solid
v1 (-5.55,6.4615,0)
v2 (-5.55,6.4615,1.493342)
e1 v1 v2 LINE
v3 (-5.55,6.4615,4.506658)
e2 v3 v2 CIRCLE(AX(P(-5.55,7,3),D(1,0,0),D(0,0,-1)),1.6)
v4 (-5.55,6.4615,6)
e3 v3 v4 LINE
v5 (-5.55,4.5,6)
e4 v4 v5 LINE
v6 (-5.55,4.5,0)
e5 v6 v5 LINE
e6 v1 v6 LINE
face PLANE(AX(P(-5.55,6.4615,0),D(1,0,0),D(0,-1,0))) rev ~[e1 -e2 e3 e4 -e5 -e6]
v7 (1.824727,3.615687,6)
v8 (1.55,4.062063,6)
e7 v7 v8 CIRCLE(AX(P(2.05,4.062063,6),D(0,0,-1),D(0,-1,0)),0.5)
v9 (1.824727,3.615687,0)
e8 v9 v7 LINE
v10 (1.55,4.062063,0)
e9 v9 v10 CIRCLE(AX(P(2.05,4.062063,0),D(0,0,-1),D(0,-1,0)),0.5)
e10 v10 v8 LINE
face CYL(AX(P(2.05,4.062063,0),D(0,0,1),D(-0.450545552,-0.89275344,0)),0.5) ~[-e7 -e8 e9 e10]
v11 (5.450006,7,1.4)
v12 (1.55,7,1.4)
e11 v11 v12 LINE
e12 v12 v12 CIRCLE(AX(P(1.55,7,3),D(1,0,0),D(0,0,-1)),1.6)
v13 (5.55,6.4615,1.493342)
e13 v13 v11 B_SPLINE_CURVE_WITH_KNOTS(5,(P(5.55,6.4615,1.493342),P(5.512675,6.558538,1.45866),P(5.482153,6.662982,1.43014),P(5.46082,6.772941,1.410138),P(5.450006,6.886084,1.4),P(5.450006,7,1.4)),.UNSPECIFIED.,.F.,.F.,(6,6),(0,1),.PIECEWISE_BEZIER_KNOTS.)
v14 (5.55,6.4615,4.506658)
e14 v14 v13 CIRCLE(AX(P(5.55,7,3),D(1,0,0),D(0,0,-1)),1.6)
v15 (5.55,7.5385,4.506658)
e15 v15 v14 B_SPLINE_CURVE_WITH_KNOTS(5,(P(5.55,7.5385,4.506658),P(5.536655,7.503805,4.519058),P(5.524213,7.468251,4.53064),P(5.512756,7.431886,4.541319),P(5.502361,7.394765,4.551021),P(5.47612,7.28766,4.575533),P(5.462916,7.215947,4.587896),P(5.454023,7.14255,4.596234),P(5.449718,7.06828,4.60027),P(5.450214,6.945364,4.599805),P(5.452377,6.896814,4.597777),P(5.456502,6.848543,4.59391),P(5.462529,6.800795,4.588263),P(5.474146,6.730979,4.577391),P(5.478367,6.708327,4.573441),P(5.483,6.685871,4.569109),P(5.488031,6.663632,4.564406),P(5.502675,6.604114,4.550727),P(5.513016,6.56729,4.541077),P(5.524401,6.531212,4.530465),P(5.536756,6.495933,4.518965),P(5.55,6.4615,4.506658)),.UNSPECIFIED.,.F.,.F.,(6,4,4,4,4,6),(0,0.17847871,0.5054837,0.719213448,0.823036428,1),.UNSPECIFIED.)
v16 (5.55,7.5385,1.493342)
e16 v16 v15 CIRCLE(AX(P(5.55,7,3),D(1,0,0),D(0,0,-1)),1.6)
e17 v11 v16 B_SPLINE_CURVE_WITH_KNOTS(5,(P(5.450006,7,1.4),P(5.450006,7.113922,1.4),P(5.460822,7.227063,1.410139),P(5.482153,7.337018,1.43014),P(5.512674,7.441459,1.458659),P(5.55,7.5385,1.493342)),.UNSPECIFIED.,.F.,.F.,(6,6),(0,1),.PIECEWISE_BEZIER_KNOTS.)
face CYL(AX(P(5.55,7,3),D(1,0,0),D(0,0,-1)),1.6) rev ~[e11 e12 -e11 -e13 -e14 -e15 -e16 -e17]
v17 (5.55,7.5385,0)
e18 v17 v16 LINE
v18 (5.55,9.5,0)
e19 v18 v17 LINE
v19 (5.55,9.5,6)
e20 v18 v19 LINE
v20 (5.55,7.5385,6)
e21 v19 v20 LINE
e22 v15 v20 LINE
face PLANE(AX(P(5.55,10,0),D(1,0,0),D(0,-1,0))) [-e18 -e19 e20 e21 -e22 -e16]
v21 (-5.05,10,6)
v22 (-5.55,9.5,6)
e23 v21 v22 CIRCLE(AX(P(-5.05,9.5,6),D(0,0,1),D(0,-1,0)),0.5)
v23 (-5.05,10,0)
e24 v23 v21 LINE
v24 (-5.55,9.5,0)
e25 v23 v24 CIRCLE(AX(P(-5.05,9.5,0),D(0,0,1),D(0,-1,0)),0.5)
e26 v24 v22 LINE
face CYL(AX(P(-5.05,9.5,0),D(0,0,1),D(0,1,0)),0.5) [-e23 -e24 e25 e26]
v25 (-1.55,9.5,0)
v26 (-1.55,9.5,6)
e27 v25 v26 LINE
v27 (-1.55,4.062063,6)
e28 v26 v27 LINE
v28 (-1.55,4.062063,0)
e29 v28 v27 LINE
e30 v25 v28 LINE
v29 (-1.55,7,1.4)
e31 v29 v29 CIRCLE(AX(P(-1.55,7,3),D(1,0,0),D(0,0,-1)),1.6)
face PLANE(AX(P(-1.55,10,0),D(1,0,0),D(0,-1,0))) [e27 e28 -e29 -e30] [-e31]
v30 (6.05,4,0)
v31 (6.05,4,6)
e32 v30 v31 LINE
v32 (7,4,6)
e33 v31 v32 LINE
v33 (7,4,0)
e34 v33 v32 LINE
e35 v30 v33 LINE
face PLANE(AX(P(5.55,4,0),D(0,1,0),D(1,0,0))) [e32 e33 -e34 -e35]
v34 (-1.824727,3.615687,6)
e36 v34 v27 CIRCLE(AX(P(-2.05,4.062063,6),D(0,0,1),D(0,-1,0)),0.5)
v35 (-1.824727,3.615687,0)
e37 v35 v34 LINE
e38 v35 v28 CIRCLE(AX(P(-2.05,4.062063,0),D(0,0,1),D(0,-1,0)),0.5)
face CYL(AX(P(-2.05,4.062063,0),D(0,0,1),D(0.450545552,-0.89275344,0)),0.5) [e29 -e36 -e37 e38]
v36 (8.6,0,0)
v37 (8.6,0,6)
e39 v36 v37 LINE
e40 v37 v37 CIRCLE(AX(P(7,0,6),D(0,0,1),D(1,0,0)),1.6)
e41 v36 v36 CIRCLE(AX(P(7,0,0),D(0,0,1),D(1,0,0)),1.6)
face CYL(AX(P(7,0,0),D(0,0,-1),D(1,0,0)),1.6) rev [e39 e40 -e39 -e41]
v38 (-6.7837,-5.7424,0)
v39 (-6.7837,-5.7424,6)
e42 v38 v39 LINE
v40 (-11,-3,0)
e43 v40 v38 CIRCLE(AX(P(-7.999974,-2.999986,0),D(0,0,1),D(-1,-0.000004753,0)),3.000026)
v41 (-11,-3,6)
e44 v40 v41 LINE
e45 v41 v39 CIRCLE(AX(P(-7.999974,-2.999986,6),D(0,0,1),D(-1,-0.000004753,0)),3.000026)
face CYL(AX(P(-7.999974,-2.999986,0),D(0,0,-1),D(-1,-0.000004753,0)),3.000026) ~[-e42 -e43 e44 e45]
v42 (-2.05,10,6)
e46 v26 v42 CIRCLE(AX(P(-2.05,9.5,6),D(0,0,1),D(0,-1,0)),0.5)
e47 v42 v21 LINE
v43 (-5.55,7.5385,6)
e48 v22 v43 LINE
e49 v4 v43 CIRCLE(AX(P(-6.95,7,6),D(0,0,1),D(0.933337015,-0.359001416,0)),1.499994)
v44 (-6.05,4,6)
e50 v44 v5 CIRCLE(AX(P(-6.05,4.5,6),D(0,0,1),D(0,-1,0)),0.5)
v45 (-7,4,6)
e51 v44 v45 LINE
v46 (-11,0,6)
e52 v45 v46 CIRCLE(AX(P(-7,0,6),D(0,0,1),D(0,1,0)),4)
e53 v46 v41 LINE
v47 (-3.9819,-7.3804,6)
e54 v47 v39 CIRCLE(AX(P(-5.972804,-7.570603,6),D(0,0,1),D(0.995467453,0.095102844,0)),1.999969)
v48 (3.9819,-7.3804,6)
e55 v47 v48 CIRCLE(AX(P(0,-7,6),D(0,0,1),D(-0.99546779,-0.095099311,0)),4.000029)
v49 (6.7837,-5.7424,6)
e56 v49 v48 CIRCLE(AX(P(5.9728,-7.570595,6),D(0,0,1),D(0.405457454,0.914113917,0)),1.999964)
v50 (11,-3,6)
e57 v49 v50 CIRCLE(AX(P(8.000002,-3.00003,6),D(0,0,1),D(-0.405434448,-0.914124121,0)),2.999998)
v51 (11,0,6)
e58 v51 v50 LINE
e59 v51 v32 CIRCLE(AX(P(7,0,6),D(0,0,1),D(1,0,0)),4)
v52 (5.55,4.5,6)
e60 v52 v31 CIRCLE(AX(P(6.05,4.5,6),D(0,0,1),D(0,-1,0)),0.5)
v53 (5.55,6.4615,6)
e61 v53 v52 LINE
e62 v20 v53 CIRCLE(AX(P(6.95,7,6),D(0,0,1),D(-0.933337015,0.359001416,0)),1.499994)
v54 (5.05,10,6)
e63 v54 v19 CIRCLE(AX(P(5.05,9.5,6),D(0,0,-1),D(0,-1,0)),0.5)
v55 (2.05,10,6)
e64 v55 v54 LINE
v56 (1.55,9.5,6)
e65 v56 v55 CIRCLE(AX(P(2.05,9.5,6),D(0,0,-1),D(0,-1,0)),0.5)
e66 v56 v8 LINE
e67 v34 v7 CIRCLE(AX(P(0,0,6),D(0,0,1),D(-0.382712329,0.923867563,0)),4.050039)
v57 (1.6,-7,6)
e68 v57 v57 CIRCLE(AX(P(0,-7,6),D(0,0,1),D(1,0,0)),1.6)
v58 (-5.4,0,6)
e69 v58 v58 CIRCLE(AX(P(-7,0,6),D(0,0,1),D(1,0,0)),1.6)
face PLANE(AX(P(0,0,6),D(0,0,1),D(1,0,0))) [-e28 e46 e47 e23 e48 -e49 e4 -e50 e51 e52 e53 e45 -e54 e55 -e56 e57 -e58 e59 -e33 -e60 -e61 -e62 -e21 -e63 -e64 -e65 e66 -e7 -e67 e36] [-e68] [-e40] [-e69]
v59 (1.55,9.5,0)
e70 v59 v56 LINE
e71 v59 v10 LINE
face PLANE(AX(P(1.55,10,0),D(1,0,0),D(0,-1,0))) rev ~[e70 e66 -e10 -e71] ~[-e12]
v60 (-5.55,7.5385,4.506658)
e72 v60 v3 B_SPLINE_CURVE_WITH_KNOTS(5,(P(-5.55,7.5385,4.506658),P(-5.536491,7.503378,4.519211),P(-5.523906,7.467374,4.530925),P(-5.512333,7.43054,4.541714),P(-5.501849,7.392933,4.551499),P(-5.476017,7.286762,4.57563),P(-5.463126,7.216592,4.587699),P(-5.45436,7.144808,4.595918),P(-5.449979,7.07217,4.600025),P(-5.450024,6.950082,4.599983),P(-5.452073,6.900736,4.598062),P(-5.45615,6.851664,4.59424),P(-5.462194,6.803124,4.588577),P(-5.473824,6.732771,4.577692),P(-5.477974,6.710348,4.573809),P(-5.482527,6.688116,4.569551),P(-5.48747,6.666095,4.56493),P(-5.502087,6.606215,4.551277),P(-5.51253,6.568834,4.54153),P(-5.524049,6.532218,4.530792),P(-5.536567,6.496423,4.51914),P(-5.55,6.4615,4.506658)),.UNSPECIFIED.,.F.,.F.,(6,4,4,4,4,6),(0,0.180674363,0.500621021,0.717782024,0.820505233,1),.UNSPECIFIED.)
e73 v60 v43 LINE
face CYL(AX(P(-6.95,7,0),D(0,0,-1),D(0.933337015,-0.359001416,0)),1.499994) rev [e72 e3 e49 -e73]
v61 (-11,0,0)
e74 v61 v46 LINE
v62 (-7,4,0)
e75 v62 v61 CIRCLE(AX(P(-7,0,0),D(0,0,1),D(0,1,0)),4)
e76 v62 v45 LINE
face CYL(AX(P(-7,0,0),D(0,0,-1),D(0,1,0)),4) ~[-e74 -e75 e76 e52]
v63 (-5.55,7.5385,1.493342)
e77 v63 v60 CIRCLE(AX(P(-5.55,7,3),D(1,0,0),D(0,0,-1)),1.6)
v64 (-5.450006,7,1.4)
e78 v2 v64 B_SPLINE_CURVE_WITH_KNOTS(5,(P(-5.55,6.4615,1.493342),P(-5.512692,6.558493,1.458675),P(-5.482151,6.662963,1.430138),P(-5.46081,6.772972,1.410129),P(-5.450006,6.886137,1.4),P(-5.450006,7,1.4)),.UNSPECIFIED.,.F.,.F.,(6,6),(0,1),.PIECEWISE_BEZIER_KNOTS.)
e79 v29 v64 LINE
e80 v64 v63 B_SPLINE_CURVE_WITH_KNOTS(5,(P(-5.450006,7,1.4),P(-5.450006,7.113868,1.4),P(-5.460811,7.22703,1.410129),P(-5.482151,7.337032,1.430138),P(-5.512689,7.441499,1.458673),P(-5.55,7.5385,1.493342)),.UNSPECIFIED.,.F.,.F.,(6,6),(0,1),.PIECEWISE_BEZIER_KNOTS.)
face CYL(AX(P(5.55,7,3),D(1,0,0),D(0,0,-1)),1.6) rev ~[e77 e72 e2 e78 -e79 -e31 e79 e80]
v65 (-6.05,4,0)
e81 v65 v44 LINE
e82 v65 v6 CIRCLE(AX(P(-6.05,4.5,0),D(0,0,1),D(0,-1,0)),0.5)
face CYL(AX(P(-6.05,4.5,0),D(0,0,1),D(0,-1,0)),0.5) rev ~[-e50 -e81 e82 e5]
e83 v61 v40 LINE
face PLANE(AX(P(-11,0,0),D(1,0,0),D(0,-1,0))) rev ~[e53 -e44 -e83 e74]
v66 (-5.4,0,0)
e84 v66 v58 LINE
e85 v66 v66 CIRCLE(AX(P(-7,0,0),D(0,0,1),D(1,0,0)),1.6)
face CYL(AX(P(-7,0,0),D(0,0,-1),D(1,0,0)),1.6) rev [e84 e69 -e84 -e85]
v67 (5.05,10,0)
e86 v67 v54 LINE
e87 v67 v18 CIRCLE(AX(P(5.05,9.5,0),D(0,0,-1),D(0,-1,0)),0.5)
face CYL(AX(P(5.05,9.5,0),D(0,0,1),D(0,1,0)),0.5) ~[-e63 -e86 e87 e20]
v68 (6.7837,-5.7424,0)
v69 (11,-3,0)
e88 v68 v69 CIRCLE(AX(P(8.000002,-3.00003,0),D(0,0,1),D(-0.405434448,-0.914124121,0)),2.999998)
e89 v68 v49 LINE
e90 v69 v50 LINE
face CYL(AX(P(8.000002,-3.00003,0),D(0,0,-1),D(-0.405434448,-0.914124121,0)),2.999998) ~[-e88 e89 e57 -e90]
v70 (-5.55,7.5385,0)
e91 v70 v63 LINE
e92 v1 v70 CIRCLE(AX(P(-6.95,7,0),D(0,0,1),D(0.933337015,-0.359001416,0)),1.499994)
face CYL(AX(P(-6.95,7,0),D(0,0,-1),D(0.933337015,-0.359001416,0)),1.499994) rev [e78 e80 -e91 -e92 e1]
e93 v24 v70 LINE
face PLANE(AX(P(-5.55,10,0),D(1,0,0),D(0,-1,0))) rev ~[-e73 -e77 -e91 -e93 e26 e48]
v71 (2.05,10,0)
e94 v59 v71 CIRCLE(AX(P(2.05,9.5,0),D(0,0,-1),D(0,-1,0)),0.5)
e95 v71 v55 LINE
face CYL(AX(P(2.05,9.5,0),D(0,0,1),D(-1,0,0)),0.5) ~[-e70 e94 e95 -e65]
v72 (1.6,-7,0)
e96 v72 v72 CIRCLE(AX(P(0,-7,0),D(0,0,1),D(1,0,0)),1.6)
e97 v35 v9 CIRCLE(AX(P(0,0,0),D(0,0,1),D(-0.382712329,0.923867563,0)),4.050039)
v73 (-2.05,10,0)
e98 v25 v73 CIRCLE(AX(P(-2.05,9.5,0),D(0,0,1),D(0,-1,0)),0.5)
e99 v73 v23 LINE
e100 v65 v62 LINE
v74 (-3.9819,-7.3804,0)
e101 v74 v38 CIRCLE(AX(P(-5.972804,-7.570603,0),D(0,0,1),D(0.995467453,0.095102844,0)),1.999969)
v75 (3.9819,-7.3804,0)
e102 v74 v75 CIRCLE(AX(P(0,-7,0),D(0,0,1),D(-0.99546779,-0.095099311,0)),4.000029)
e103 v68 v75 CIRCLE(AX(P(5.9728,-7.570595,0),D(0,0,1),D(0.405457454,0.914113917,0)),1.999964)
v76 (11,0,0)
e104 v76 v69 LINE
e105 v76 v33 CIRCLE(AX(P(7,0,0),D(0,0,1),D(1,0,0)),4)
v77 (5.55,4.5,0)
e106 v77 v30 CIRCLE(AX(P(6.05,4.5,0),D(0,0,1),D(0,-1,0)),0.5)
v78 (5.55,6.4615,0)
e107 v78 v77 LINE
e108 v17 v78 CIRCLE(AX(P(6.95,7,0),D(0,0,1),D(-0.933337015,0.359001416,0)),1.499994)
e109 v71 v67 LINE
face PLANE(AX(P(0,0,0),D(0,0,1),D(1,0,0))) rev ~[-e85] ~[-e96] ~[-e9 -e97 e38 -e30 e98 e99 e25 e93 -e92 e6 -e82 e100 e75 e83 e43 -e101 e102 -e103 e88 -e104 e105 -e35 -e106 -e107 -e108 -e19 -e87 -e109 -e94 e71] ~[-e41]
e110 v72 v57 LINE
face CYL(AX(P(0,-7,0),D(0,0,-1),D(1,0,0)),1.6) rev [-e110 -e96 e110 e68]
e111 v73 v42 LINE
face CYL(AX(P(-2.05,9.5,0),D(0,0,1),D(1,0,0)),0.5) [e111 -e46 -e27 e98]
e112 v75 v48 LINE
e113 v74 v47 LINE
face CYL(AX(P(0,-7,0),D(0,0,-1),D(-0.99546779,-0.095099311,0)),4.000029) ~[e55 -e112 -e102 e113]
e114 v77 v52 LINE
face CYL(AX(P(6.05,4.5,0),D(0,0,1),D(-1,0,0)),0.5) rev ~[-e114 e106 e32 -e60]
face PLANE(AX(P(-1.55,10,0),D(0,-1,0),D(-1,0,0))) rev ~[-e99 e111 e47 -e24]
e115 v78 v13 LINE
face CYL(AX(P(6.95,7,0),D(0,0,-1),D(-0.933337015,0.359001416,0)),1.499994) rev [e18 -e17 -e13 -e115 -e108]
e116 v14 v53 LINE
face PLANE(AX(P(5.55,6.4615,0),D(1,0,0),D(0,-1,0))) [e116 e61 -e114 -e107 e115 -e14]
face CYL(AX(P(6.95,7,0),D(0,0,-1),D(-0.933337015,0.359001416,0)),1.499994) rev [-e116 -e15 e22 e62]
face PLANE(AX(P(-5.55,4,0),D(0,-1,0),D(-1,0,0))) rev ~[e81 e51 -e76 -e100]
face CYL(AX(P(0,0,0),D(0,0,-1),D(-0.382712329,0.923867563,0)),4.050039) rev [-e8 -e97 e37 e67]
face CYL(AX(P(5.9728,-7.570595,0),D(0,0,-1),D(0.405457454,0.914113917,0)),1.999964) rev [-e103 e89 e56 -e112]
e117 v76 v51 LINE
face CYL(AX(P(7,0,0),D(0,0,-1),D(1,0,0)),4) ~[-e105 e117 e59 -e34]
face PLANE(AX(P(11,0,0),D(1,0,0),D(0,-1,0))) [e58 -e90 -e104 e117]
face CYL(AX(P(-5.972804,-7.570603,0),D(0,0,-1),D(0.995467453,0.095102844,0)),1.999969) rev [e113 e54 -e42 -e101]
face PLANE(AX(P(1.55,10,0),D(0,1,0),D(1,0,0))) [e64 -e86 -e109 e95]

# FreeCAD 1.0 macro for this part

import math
import FreeCAD as App
import Part
import Sketcher

V = App.Vector
Q = App.Units.Quantity


def edges_at(feature, points):
    """Names of the edges that pass closest to the given points."""
    edges = feature.Shape.Edges
    near = lambda p: min(range(len(edges)), key=lambda i: edges[i].distToShape(Part.Vertex(*p))[0])
    return sorted({f"Edge{near(p) + 1}" for p in points})

doc = App.newDocument("Part")
body = doc.addObject("PartDesign::Body", "Body")

# Sketch on XY plane
sketch1 = body.newObject("Sketcher::SketchObject", "Sketch")
sketch1.AttachmentSupport = (doc.getObject("XY_Plane"), [""])
sketch1.MapMode = "FlatFace"
sketch1.addGeometry([
    Part.ArcOfCircle(Part.Circle(V(0, 0, 0), V(0, 0, 1), 4.1), math.radians(113), math.radians(427)),  # 0
    Part.LineSegment(V(-1.6, 3.7, 0), V(-1.6, 10, 0)),  # 1
    Part.LineSegment(V(-1.6, 10, 0), V(-5.5, 10, 0)),  # 2
    Part.LineSegment(V(-5.5, 10, 0), V(-5.5, 7.5, 0)),  # 3
    Part.ArcOfCircle(Part.Circle(V(-7, 7, 0), V(0, 0, 1), 1.5), math.radians(-21), math.radians(21)),  # 4
    Part.LineSegment(V(-5.5, 6.5, 0), V(-5.5, 4, 0)),  # 5
    Part.LineSegment(V(-5.5, 4, 0), V(-7, 4, 0)),  # 6
    Part.ArcOfCircle(Part.Circle(V(-7, 0, 0), V(0, 0, 1), 4), math.radians(90), math.radians(180)),  # 7
    Part.LineSegment(V(-11, 0, 0), V(-11, -3, 0)),  # 8
    Part.ArcOfCircle(Part.Circle(V(-8, -3, 0), V(0, 0, 1), 3), math.radians(180), math.radians(294)),  # 9
    Part.ArcOfCircle(Part.Circle(V(-6, -7.6, 0), V(0, 0, 1), 2), math.radians(5), math.radians(114)),  # 10
    Part.ArcOfCircle(Part.Circle(V(0, -7, 0), V(0, 0, 1), 4), math.radians(-175), math.radians(-5)),  # 11
    Part.ArcOfCircle(Part.Circle(V(6, -7.6, 0), V(0, 0, 1), 2), math.radians(66), math.radians(175)),  # 12
    Part.ArcOfCircle(Part.Circle(V(8, -3, 0), V(0, 0, 1), 3), math.radians(-114), math.radians(0)),  # 13
    Part.LineSegment(V(11, -3, 0), V(11, 0, 0)),  # 14
    Part.ArcOfCircle(Part.Circle(V(7, 0, 0), V(0, 0, 1), 4), math.radians(0), math.radians(90)),  # 15
    Part.LineSegment(V(7, 4, 0), V(5.5, 4, 0)),  # 16
    Part.LineSegment(V(5.5, 4, 0), V(5.5, 6.5, 0)),  # 17
    Part.ArcOfCircle(Part.Circle(V(7, 7, 0), V(0, 0, 1), 1.5), math.radians(159), math.radians(201)),  # 18
    Part.LineSegment(V(5.5, 7.5, 0), V(5.5, 10, 0)),  # 19
    Part.LineSegment(V(5.5, 10, 0), V(1.6, 10, 0)),  # 20
    Part.LineSegment(V(1.6, 10, 0), V(1.6, 3.7, 0)),  # 21
    Part.Circle(V(0, -7, 0), V(0, 0, 1), 1.6),  # 22
    Part.Circle(V(-7, 0, 0), V(0, 0, 1), 1.6),  # 23
    Part.Circle(V(7, 0, 0), V(0, 0, 1), 1.6),  # 24
], False)
sketch1.addConstraint([
    Sketcher.Constraint("Coincident", 0, 1, 1, 1),
    Sketcher.Constraint("Coincident", 1, 2, 2, 1),
    Sketcher.Constraint("Coincident", 2, 2, 3, 1),
    Sketcher.Constraint("Coincident", 3, 2, 4, 2),
    Sketcher.Constraint("Coincident", 4, 1, 5, 1),
    Sketcher.Constraint("Coincident", 5, 2, 6, 1),
    Sketcher.Constraint("Tangent", 6, 2, 7, 1),
    Sketcher.Constraint("Tangent", 7, 2, 8, 1),
    Sketcher.Constraint("Tangent", 8, 2, 9, 1),
    Sketcher.Constraint("Tangent", 9, 2, 10, 2),
    Sketcher.Constraint("Tangent", 10, 1, 11, 1),
    Sketcher.Constraint("Tangent", 11, 2, 12, 2),
    Sketcher.Constraint("Tangent", 12, 1, 13, 1),
    Sketcher.Constraint("Tangent", 13, 2, 14, 1),
    Sketcher.Constraint("Tangent", 14, 2, 15, 1),
    Sketcher.Constraint("Tangent", 15, 2, 16, 1),
    Sketcher.Constraint("Coincident", 16, 2, 17, 1),
    Sketcher.Constraint("Coincident", 17, 2, 18, 2),
    Sketcher.Constraint("Coincident", 18, 1, 19, 1),
    Sketcher.Constraint("Coincident", 19, 2, 20, 1),
    Sketcher.Constraint("Coincident", 20, 2, 21, 1),
    Sketcher.Constraint("Coincident", 21, 2, 0, 2),
    Sketcher.Constraint("Vertical", 1),
    Sketcher.Constraint("Horizontal", 2),
    Sketcher.Constraint("Vertical", 3),
    Sketcher.Constraint("Vertical", 5),
    Sketcher.Constraint("Horizontal", 6),
    Sketcher.Constraint("Vertical", 8),
    Sketcher.Constraint("Vertical", 14),
    Sketcher.Constraint("Horizontal", 16),
    Sketcher.Constraint("Vertical", 17),
    Sketcher.Constraint("Vertical", 19),
    Sketcher.Constraint("Horizontal", 20),
    Sketcher.Constraint("Vertical", 21),
    Sketcher.Constraint("Coincident", 0, 3, -1, 1),
    Sketcher.Constraint("Coincident", 22, 3, 11, 3),
    Sketcher.Constraint("Coincident", 23, 3, 7, 3),
    Sketcher.Constraint("Coincident", 24, 3, 15, 3),
    Sketcher.Constraint("Equal", 7, 11),
    Sketcher.Constraint("Equal", 10, 12),
    Sketcher.Constraint("Equal", 9, 13),
    Sketcher.Constraint("Equal", 11, 15),
    Sketcher.Constraint("Equal", 4, 18),
    Sketcher.Constraint("Equal", 22, 23),
    Sketcher.Constraint("Equal", 23, 24),
    Sketcher.Constraint("Symmetric", 7, 3, 15, 3, -1, 1),
    Sketcher.Constraint("Symmetric", 10, 3, 12, 3, -2),
    Sketcher.Constraint("Symmetric", 4, 3, 18, 3, -2),
    Sketcher.Constraint("Symmetric", 5, 2, 16, 2, -2),
    Sketcher.Constraint("Symmetric", 2, 2, 19, 2, -2),
    Sketcher.Constraint("Horizontal", 0, 1, 21, 2),
    Sketcher.Constraint("Vertical", 3, 2, 4, 1),
    Sketcher.Constraint("Equal", 3, 5),
    Sketcher.Constraint("Radius", 7, Q("4 mm")),
    Sketcher.Constraint("Radius", 9, Q("3 mm")),
    Sketcher.Constraint("Radius", 10, Q("2 mm")),
    Sketcher.Constraint("Diameter", 22, Q("3.2 mm")),
    Sketcher.Constraint("Radius", 4, Q("1.5 mm")),
    Sketcher.Constraint("DistanceX", 2, 2, 2, 1, Q("4 mm")),
    Sketcher.Constraint("DistanceY", 8, 2, 8, 1, Q("3 mm")),
    Sketcher.Constraint("Radius", 0, Q("4.05 mm")),
    Sketcher.Constraint("DistanceY", -1, 1, 4, 3, Q("7 mm")),
    Sketcher.Constraint("DistanceX", 7, 3, -1, 1, Q("7 mm")),
    Sketcher.Constraint("DistanceY", 11, 3, -1, 1, Q("7 mm")),
    Sketcher.Constraint("DistanceX", 4, 3, 2, 2, Q("1.4 mm")),
    Sketcher.Constraint("DistanceX", 1, 2, 20, 2, Q("3.1 mm")),
])
pad1 = body.newObject("PartDesign::Pad", "Pad")
pad1.Profile = sketch1
pad1.Length = 6

# Sketch on YZ plane
sketch2 = body.newObject("Sketcher::SketchObject", "Sketch001")
sketch2.AttachmentSupport = (doc.getObject("YZ_Plane"), [""])
sketch2.MapMode = "FlatFace"
sketch2.AttachmentOffset = App.Placement(V(0, 0, 5.55), App.Rotation())
sketch2.addGeometry(Part.Circle(V(7, 3, 0), V(0, 0, 1), 1.6), False)
sketch2.addConstraint([
    Sketcher.Constraint("Diameter", 0, Q("3.2 mm")),
    Sketcher.Constraint("DistanceY", -1, 1, 0, 3, Q("3 mm")),
    Sketcher.Constraint("DistanceX", -1, 1, 0, 3, Q("7 mm")),
])
pocket1 = body.newObject("PartDesign::Pocket", "Pocket")
pocket1.Profile = sketch2
pocket1.Type = "ThroughAll"
doc.recompute()

fillet = body.newObject("PartDesign::Fillet", "Fillet")
fillet.Base = (pocket1, edges_at(pocket1, [
    (-5.55, 10, 3),
    (-1.55, 10, 3),
    (1.55, 10, 3),
    (5.55, 10, 3),
    (5.55, 4, 3),
    (-5.55, 4, 3),
    (-1.55, 3.742, 3),
    (1.55, 3.742, 3),
]))
fillet.Radius = 0.5

doc.recompute()
